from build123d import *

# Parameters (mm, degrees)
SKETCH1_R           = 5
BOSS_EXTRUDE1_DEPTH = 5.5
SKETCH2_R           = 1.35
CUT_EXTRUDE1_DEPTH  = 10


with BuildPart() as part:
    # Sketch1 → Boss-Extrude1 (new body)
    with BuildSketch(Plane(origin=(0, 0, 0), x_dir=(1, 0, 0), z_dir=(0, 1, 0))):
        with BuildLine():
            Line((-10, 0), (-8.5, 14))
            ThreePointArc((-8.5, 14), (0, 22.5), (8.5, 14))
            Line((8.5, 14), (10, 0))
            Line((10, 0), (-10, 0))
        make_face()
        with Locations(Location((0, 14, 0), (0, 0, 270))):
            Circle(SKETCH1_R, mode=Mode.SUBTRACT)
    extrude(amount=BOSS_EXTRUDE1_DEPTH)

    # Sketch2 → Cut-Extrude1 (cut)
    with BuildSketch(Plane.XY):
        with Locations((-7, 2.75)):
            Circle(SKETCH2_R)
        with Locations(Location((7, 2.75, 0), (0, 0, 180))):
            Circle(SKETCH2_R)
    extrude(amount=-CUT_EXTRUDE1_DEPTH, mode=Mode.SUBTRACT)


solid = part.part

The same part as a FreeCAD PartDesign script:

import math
import FreeCAD as App
import Part
import Sketcher
Q = App.Units.Quantity

doc = App.newDocument("Part")
body = doc.addObject("PartDesign::Body", "Body")

# Sketch on XZ plane
sketch1 = body.newObject("Sketcher::SketchObject", "Sketch")
sketch1.AttachmentSupport = (doc.getObject("XZ_Plane"), [""])
sketch1.MapMode = "FlatFace"
sketch1.addGeometry([
    Part.LineSegment(App.Vector(-8, -14, 0), App.Vector(-10, 0, 0)),  # 0
    Part.LineSegment(App.Vector(-10, 0, 0), App.Vector(10, 0, 0)),  # 1
    Part.LineSegment(App.Vector(10, 0, 0), App.Vector(8, -14, 0)),  # 2
    Part.ArcOfCircle(Part.Circle(App.Vector(0, -14, 0), App.Vector(0, 0, 1), 8), math.radians(180), math.radians(360)),  # 3
    Part.Circle(App.Vector(0, -14, 0), App.Vector(0, 0, 1), 5),  # 4
], False)
sketch1.addConstraint([
    Sketcher.Constraint("Coincident", 0, 2, 1, 1),
    Sketcher.Constraint("Coincident", 1, 2, 2, 1),
    Sketcher.Constraint("Coincident", 2, 2, 3, 2),
    Sketcher.Constraint("Coincident", 3, 1, 0, 1),
    Sketcher.Constraint("Horizontal", 1),
    Sketcher.Constraint("Coincident", 4, 3, 3, 3),
    Sketcher.Constraint("Symmetric", 0, 2, 1, 2, -1, 1),
    Sketcher.Constraint("Symmetric", 2, 2, 3, 1, -2),
    Sketcher.Constraint("Horizontal", 4, 3, 2, 2),
    Sketcher.Constraint("Diameter", 4, Q("10 mm")),
    Sketcher.Constraint("Radius", 3, Q("8.5 mm")),
    Sketcher.Constraint("DistanceX", 1, 1, 1, 2, Q("20 mm")),
    Sketcher.Constraint("DistanceY", 3, 3, -1, 1, Q("14 mm")),
])
pad1 = body.newObject("PartDesign::Pad", "Pad")
pad1.Profile = sketch1
pad1.Length = 5.5
pad1.Reversed = True

# Sketch on XY plane
sketch2 = body.newObject("Sketcher::SketchObject", "Sketch001")
sketch2.AttachmentSupport = (doc.getObject("XY_Plane"), [""])
sketch2.MapMode = "FlatFace"
sketch2.addGeometry([
    Part.Circle(App.Vector(-7, 2.8, 0), App.Vector(0, 0, 1), 1.4),
    Part.Circle(App.Vector(7, 2.8, 0), App.Vector(0, 0, 1), 1.4),
], False)
sketch2.addConstraint([
    Sketcher.Constraint("Equal", 0, 1),
    Sketcher.Constraint("Symmetric", 0, 3, 1, 3, -2),
    Sketcher.Constraint("Diameter", 0, Q("2.7 mm")),
    Sketcher.Constraint("DistanceX", 0, 3, -1, 1, Q("7 mm")),
    Sketcher.Constraint("DistanceY", -1, 1, 0, 3, Q("2.75 mm")),
])
pocket1 = body.newObject("PartDesign::Pocket", "Pocket")
pocket1.Profile = sketch2
pocket1.Length = 10

doc.recompute()
